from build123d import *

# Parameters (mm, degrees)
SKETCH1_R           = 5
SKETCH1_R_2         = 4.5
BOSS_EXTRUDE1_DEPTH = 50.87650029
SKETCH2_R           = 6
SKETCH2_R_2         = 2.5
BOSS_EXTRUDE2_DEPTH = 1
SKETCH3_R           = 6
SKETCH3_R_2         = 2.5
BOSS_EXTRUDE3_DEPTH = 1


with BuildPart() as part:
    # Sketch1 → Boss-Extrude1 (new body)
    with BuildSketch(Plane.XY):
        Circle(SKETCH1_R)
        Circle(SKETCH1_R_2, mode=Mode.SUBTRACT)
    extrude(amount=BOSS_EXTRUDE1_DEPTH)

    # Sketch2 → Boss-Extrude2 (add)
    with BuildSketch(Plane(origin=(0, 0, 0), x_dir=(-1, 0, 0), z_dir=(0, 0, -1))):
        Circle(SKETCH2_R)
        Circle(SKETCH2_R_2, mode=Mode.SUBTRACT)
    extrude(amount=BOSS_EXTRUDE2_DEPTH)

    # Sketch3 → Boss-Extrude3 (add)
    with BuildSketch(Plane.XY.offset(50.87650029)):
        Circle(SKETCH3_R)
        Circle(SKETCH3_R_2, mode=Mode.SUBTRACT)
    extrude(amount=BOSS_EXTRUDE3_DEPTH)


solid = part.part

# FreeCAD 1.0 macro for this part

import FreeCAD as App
import Part
import Sketcher
from FreeCAD import Vector
Q = App.Units.Quantity

doc = App.newDocument("Part")
body = doc.addObject("PartDesign::Body", "Body")

# Sketch on XY plane
sketch1 = body.newObject("Sketcher::SketchObject", "Sketch")
sketch1.AttachmentSupport = (doc.getObject("XY_Plane"), [""])
sketch1.MapMode = "FlatFace"
sketch1.addGeometry(Part.Circle(Vector(0, 0, 0), Vector(0, 0, 1), 5), False)
sketch1.addGeometry(Part.Circle(Vector(0, 0, 0), Vector(0, 0, 1), 4.5), False)
sketch1.addConstraint(Sketcher.Constraint("Coincident", 0, 3, -1, 1))
sketch1.addConstraint(Sketcher.Constraint("Coincident", 1, 3, -1, 1))
sketch1.addConstraint(Sketcher.Constraint("Diameter", 0, Q("10 mm")))
sketch1.addConstraint(Sketcher.Constraint("Diameter", 1, Q("9 mm")))
pad1 = body.newObject("PartDesign::Pad", "Pad")
pad1.Profile = sketch1
pad1.Length = 50.8765

# Sketch on XY plane
sketch2 = body.newObject("Sketcher::SketchObject", "Sketch001")
sketch2.AttachmentSupport = (doc.getObject("XY_Plane"), [""])
sketch2.MapMode = "FlatFace"
sketch2.addGeometry(Part.Circle(Vector(0, 0, 0), Vector(0, 0, 1), 6), False)
sketch2.addGeometry(Part.Circle(Vector(0, 0, 0), Vector(0, 0, 1), 2.5), False)
sketch2.addConstraint(Sketcher.Constraint("Coincident", 0, 3, -1, 1))
sketch2.addConstraint(Sketcher.Constraint("Coincident", 1, 3, -1, 1))
sketch2.addConstraint(Sketcher.Constraint("Diameter", 0, Q("12 mm")))
sketch2.addConstraint(Sketcher.Constraint("Diameter", 1, Q("5 mm")))
pad2 = body.newObject("PartDesign::Pad", "Pad001")
pad2.Profile = sketch2
pad2.Length = 1
pad2.Reversed = True

# Sketch on XY plane
sketch3 = body.newObject("Sketcher::SketchObject", "Sketch002")
sketch3.AttachmentSupport = (doc.getObject("XY_Plane"), [""])
sketch3.MapMode = "FlatFace"
sketch3.AttachmentOffset = App.Placement(Vector(0, 0, 50.8765), App.Rotation())
sketch3.addGeometry(Part.Circle(Vector(0, 0, 0), Vector(0, 0, 1), 6), False)
sketch3.addGeometry(Part.Circle(Vector(0, 0, 0), Vector(0, 0, 1), 2.5), False)
sketch3.addConstraint(Sketcher.Constraint("Coincident", 0, 3, -1, 1))
sketch3.addConstraint(Sketcher.Constraint("Coincident", 1, 3, -1, 1))
sketch3.addConstraint(Sketcher.Constraint("Diameter", 0, Q("12 mm")))
sketch3.addConstraint(Sketcher.Constraint("Diameter", 1, Q("5 mm")))
pad3 = body.newObject("PartDesign::Pad", "Pad002")
pad3.Profile = sketch3
pad3.Length = 1

doc.recompute()
